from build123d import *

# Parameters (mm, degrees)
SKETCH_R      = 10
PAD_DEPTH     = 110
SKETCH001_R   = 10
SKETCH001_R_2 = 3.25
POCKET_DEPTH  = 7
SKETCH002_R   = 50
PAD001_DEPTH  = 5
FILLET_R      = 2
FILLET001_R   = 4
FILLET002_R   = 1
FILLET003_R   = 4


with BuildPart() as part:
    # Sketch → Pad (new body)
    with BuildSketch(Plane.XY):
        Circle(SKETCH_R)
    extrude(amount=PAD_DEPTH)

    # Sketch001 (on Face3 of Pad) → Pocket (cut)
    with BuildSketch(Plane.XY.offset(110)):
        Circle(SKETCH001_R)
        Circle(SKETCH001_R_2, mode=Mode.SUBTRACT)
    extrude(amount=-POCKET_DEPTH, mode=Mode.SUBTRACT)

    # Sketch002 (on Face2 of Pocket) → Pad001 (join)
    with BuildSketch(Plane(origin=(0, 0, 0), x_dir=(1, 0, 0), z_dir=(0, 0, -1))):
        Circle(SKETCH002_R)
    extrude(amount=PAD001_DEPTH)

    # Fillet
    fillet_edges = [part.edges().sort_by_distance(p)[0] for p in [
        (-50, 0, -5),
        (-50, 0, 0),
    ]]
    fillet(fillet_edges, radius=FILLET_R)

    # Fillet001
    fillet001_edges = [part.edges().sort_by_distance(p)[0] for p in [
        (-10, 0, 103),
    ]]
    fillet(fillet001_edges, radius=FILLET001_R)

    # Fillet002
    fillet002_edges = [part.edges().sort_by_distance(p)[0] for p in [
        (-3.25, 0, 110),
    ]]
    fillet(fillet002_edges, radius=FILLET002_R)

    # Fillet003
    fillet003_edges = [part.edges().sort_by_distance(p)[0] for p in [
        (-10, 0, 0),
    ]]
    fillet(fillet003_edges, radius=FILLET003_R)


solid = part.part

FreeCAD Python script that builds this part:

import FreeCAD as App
import Part
import Sketcher


def edges_at(feature, points):
    """Names of the edges that pass closest to the given points."""
    edges = feature.Shape.Edges
    near = lambda p: min(range(len(edges)), key=lambda i: edges[i].distToShape(Part.Vertex(*p))[0])
    return sorted({f"Edge{near(p) + 1}" for p in points})

doc = App.newDocument("Part")
params = doc.addObject("Spreadsheet::Sheet", "Params")
for row, (alias, value) in enumerate([
    ("sketch1_diameter", "20 mm"),
    ("pad1_length", "110 mm"),
    ("sketch2_diameter", "20 mm"),
    ("sketch2_diameter2", "6.5 mm"),
    ("pocket1_length", "7 mm"),
    ("sketch3_diameter", "100 mm"),
    ("pad2_length", "5 mm"),
    ("fillet_radius", "2 mm"),
    ("fillet2_radius", "4 mm"),
    ("fillet3_radius", "1 mm"),
    ("fillet4_radius", "4 mm"),
], start=1):
    params.set(f"A{row}", alias)
    params.set(f"B{row}", "=" + value)
    params.setAlias(f"B{row}", alias)

body = doc.addObject("PartDesign::Body", "Body")

# Sketch on XY plane
sketch1 = body.newObject("Sketcher::SketchObject", "Sketch")
sketch1.AttachmentSupport = (doc.getObject("XY_Plane"), [""])
sketch1.MapMode = "FlatFace"
sketch1.addGeometry(Part.Circle(App.Vector(0, 0, 0), App.Vector(0, 0, 1), 10), False)
sketch1.addConstraint(Sketcher.Constraint("Coincident", 0, 3, -1, 1))
sketch1.addConstraint(Sketcher.Constraint("Diameter", 0, 20.0))
sketch1.setExpression("Constraints[1]", "Params.sketch1_diameter")
pad1 = body.newObject("PartDesign::Pad", "Pad")
pad1.Profile = sketch1
pad1.setExpression("Length", "Params.pad1_length")

# Sketch on XY plane
sketch2 = body.newObject("Sketcher::SketchObject", "Sketch001")
sketch2.AttachmentSupport = (doc.getObject("XY_Plane"), [""])
sketch2.MapMode = "FlatFace"
sketch2.AttachmentOffset = App.Placement(App.Vector(0, 0, 110), App.Rotation())
sketch2.addGeometry(Part.Circle(App.Vector(0, 0, 0), App.Vector(0, 0, 1), 10), False)
sketch2.addGeometry(Part.Circle(App.Vector(0, 0, 0), App.Vector(0, 0, 1), 3.25), False)
sketch2.addConstraint(Sketcher.Constraint("Coincident", 0, 3, -1, 1))
sketch2.addConstraint(Sketcher.Constraint("Coincident", 1, 3, -1, 1))
sketch2.addConstraint(Sketcher.Constraint("Diameter", 0, 20.0))
sketch2.addConstraint(Sketcher.Constraint("Diameter", 1, 6.5))
sketch2.setExpression("Constraints[2]", "Params.sketch2_diameter")
sketch2.setExpression("Constraints[3]", "Params.sketch2_diameter2")
pocket1 = body.newObject("PartDesign::Pocket", "Pocket")
pocket1.Profile = sketch2
pocket1.setExpression("Length", "Params.pocket1_length")

# Sketch on XY plane
sketch3 = body.newObject("Sketcher::SketchObject", "Sketch002")
sketch3.AttachmentSupport = (doc.getObject("XY_Plane"), [""])
sketch3.MapMode = "FlatFace"
sketch3.addGeometry(Part.Circle(App.Vector(0, 0, 0), App.Vector(0, 0, 1), 50), False)
sketch3.addConstraint(Sketcher.Constraint("Coincident", 0, 3, -1, 1))
sketch3.addConstraint(Sketcher.Constraint("Diameter", 0, 100.0))
sketch3.setExpression("Constraints[1]", "Params.sketch3_diameter")
pad2 = body.newObject("PartDesign::Pad", "Pad001")
pad2.Profile = sketch3
pad2.setExpression("Length", "Params.pad2_length")
pad2.Reversed = True
doc.recompute()

fillet = body.newObject("PartDesign::Fillet", "Fillet")
fillet.Base = (pad2, edges_at(pad2, [(-50, 0, -5), (-50, 0, 0)]))
fillet.setExpression("Radius", "Params.fillet_radius")
doc.recompute()

fillet2 = body.newObject("PartDesign::Fillet", "Fillet001")
fillet2.Base = (fillet, edges_at(fillet, [(-10, 0, 103)]))
fillet2.setExpression("Radius", "Params.fillet2_radius")
doc.recompute()

fillet3 = body.newObject("PartDesign::Fillet", "Fillet002")
fillet3.Base = (fillet2, edges_at(fillet2, [(-3.25, 0, 110)]))
fillet3.setExpression("Radius", "Params.fillet3_radius")
doc.recompute()

fillet4 = body.newObject("PartDesign::Fillet", "Fillet003")
fillet4.Base = (fillet3, edges_at(fillet3, [(-10, 0, 0)]))
fillet4.setExpression("Radius", "Params.fillet4_radius")

doc.recompute()
